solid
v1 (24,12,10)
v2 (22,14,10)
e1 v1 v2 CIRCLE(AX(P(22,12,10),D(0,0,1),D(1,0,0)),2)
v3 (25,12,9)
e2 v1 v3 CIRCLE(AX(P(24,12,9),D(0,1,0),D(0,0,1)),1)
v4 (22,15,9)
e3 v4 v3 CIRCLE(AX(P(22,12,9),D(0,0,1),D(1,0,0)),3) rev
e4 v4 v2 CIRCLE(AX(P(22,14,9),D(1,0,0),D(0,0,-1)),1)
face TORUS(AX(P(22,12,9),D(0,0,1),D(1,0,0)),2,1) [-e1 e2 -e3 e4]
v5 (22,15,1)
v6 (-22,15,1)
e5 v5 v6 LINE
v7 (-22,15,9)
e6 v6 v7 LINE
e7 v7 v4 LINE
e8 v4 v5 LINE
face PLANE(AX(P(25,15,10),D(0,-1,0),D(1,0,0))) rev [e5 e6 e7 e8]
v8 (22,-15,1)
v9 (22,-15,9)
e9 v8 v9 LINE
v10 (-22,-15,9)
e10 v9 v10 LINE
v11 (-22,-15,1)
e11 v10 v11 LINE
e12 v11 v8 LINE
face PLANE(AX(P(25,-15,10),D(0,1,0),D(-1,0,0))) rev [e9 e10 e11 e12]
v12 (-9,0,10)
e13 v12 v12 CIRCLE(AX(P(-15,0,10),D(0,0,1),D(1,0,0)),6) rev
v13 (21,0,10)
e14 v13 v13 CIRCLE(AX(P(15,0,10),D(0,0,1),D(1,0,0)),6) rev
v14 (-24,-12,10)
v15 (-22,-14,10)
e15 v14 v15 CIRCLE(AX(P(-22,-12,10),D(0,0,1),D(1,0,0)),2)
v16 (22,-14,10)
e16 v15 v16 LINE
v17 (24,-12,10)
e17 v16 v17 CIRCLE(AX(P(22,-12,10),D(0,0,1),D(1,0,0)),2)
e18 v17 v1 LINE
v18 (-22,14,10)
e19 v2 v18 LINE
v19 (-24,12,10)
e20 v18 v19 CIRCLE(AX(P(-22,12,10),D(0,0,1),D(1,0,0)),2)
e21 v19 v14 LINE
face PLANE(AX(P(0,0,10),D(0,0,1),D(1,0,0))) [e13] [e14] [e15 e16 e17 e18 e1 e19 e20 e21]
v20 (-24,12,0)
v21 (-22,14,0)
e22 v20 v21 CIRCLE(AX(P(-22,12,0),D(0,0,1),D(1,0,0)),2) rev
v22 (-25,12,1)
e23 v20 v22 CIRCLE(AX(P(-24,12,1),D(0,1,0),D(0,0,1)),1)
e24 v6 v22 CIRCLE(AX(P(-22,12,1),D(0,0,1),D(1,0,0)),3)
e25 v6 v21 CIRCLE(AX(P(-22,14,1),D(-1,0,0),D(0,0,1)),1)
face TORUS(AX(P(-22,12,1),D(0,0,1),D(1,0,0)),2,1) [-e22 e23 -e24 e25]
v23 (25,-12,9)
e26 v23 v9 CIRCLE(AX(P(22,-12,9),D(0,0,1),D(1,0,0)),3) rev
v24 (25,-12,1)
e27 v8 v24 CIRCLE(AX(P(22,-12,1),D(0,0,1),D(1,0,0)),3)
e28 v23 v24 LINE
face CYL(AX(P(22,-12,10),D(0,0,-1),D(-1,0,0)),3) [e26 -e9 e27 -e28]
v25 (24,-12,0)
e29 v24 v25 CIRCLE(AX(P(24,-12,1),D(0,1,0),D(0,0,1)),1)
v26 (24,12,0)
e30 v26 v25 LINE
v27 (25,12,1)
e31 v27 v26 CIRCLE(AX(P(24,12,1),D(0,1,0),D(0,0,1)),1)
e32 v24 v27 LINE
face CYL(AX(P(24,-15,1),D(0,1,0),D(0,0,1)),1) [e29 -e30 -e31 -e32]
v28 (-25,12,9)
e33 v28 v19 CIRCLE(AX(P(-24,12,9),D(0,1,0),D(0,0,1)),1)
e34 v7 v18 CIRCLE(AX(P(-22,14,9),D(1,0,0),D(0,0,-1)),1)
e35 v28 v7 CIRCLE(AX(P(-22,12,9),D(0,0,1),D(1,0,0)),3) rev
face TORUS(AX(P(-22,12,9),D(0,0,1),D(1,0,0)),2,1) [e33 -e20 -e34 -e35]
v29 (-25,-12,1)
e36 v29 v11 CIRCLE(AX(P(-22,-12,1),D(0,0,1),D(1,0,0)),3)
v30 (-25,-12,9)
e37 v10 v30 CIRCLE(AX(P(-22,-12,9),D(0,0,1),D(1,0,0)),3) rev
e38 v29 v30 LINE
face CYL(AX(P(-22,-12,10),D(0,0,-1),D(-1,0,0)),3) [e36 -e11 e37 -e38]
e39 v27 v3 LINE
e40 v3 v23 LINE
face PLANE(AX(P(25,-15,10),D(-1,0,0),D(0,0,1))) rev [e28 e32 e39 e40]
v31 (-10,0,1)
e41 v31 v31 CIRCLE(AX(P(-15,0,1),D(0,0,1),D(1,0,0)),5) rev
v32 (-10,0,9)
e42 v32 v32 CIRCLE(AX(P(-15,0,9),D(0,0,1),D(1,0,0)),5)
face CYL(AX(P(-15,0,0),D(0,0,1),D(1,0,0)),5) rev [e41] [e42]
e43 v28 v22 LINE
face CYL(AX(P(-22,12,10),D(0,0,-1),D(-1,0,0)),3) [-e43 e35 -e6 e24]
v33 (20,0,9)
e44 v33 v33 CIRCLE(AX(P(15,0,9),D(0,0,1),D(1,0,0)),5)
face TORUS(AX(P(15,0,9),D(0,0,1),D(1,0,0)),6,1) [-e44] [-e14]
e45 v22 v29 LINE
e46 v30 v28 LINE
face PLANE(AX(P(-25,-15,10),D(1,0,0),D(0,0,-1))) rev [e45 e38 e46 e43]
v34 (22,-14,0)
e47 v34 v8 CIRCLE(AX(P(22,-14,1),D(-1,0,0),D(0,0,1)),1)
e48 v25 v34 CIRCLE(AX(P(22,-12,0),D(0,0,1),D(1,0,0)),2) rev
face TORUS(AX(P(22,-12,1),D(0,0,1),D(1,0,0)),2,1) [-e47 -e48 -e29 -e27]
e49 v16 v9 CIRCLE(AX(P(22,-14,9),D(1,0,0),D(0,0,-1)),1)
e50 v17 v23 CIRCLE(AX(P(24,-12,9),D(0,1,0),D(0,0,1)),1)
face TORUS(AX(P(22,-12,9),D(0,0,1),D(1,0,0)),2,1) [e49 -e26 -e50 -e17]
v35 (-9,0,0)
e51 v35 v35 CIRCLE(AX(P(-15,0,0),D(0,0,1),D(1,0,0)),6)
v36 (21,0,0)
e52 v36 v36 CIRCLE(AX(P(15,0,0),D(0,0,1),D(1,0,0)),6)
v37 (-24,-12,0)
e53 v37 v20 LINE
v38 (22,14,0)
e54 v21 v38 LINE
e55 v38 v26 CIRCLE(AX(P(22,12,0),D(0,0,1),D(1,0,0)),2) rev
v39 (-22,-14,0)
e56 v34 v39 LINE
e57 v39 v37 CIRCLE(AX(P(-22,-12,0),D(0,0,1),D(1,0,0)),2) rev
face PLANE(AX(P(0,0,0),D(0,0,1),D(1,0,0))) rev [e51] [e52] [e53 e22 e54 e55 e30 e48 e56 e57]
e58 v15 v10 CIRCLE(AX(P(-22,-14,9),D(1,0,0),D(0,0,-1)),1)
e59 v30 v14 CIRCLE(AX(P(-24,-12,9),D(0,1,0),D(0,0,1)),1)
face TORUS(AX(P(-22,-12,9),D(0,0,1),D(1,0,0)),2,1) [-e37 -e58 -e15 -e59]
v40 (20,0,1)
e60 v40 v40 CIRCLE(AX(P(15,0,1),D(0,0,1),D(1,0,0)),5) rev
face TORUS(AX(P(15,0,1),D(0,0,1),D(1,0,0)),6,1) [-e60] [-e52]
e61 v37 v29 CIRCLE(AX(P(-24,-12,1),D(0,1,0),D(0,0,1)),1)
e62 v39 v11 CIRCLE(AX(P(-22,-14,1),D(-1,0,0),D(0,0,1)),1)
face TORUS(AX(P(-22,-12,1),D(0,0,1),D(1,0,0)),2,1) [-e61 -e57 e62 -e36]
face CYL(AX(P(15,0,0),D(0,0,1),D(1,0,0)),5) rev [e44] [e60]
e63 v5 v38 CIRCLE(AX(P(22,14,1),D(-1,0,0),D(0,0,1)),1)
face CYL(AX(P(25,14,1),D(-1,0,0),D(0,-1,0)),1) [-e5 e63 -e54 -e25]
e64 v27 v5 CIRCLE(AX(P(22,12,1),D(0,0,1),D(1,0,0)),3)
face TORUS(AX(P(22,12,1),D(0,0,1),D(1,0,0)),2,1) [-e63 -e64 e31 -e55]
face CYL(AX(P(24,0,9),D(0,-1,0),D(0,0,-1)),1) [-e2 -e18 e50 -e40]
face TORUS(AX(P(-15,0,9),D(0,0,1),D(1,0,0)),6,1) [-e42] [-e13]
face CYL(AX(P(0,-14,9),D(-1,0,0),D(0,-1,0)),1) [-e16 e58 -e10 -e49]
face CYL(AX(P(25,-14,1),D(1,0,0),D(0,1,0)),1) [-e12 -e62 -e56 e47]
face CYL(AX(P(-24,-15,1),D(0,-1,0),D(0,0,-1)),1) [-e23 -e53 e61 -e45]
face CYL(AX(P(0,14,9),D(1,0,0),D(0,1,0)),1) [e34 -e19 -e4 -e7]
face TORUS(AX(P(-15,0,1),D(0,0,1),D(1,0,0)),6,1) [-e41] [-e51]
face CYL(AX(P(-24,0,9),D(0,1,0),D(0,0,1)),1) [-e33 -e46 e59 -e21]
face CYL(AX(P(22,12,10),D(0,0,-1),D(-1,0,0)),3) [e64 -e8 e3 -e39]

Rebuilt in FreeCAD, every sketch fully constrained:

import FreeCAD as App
import Part
import Sketcher

V = App.Vector
Q = App.Units.Quantity


def edges_at(feature, points):
    """Names of the edges that pass closest to the given points."""
    edges = feature.Shape.Edges
    near = lambda p: min(range(len(edges)), key=lambda i: edges[i].distToShape(Part.Vertex(*p))[0])
    return sorted({f"Edge{near(p) + 1}" for p in points})

doc = App.newDocument("Part")
body = doc.addObject("PartDesign::Body", "Body")

# Sketch on XY plane
sketch1 = body.newObject("Sketcher::SketchObject", "Sketch")
sketch1.AttachmentSupport = (doc.getObject("XY_Plane"), [""])
sketch1.MapMode = "FlatFace"
sketch1.addGeometry([
    Part.LineSegment(V(-25, 15, 0), V(-25, -15, 0)),
    Part.LineSegment(V(-25, -15, 0), V(25, -15, 0)),
    Part.LineSegment(V(25, -15, 0), V(25, 15, 0)),
    Part.LineSegment(V(25, 15, 0), V(-25, 15, 0)),
], False)
sketch1.addConstraint([
    Sketcher.Constraint("Coincident", 0, 2, 1, 1),
    Sketcher.Constraint("Coincident", 1, 2, 2, 1),
    Sketcher.Constraint("Coincident", 2, 2, 3, 1),
    Sketcher.Constraint("Coincident", 3, 2, 0, 1),
    Sketcher.Constraint("Vertical", 0),
    Sketcher.Constraint("Horizontal", 1),
    Sketcher.Constraint("Vertical", 2),
    Sketcher.Constraint("Horizontal", 3),
    Sketcher.Constraint("Symmetric", 0, 2, 2, 2, -1, 1),
    Sketcher.Constraint("DistanceX", 1, 1, 1, 2, Q("50 mm")),
    Sketcher.Constraint("DistanceY", 0, 2, 0, 1, Q("30 mm")),
])
pad1 = body.newObject("PartDesign::Pad", "Pad")
pad1.Profile = sketch1
pad1.Length = 10

# Sketch on XY plane
sketch2 = body.newObject("Sketcher::SketchObject", "Sketch001")
sketch2.AttachmentSupport = (doc.getObject("XY_Plane"), [""])
sketch2.MapMode = "FlatFace"
sketch2.AttachmentOffset = App.Placement(V(0, 0, 10), App.Rotation())
sketch2.addGeometry([
    Part.Circle(V(-15, 0, 0), V(0, 0, 1), 5),
    Part.Circle(V(15, 0, 0), V(0, 0, 1), 5),
], False)
sketch2.addConstraint([
    Sketcher.Constraint("Equal", 0, 1),
    Sketcher.Constraint("Symmetric", 0, 3, 1, 3, -1, 1),
    Sketcher.Constraint("PointOnObject", 0, 3, -1),
    Sketcher.Constraint("Diameter", 0, Q("10 mm")),
    Sketcher.Constraint("DistanceX", 0, 3, -1, 1, Q("15 mm")),
])
pocket1 = body.newObject("PartDesign::Pocket", "Pocket")
pocket1.Profile = sketch2
pocket1.Length = 10
doc.recompute()

fillet = body.newObject("PartDesign::Fillet", "Fillet")
fillet.Base = (pocket1, edges_at(pocket1, [
    (-25, 15, 5),
    (25, 15, 5),
    (25, -15, 5),
    (-25, -15, 5),
]))
fillet.Radius = 3
doc.recompute()

fillet2 = body.newObject("PartDesign::Fillet", "Fillet001")
fillet2.Base = (fillet, edges_at(fillet, [
    (-20, 0, 0),
    (-20, 0, 10),
    (10, 0, 0),
    (10, 0, 10),
    (0, -15, 0),
    (0, -15, 10),
    (-25, 0, 0),
    (0, 15, 0),
    (25, 0, 0),
    (24.121, 14.121, 0),
    (-24.121, 14.121, 0),
    (24.121, -14.121, 0),
    (-24.121, -14.121, 0),
    (-25, 0, 10),
    (25, 0, 10),
    (0, 15, 10),
    (24.121, 14.121, 10),
    (-24.121, 14.121, 10),
    (24.121, -14.121, 10),
    (-24.121, -14.121, 10),
]))
fillet2.Radius = 1

doc.recompute()
